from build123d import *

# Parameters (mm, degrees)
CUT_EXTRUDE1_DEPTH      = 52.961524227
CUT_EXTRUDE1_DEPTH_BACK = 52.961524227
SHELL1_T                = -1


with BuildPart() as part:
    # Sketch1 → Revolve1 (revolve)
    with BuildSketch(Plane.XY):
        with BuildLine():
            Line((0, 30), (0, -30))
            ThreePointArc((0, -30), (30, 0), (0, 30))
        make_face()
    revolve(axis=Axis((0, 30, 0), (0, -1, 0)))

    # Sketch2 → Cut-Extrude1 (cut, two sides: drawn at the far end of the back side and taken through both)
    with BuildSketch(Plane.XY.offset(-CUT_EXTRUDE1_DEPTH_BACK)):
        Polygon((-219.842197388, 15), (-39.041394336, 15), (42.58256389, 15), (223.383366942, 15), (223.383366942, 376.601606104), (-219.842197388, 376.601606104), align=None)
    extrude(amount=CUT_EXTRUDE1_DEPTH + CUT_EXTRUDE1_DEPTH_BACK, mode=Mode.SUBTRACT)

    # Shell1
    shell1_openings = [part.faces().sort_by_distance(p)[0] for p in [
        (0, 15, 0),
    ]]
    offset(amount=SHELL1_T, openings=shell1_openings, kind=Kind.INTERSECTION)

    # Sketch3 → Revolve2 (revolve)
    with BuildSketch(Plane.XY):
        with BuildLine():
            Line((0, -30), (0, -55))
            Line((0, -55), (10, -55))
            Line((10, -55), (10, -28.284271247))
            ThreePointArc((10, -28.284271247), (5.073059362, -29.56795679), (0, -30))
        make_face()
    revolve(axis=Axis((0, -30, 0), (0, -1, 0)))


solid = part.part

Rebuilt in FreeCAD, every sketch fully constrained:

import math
import FreeCAD as App
import Part
import Sketcher

V = App.Vector
Q = App.Units.Quantity


def faces_at(feature, points):
    """Names of the faces that lie closest to the given points."""
    faces = feature.Shape.Faces
    near = lambda p: min(range(len(faces)), key=lambda i: faces[i].distToShape(Part.Vertex(*p))[0])
    return sorted({f"Face{near(p) + 1}" for p in points})


def add_polygon(sketch, points):
    """Adds a closed chain of lines whose ends are joined by coincident constraints."""
    first, n = sketch.GeometryCount, len(points)
    for a, b in zip(points, points[1:] + points[:1]):
        sketch.addGeometry(Part.LineSegment(App.Vector(*a, 0), App.Vector(*b, 0)), False)
    for i in range(n):
        sketch.addConstraint(Sketcher.Constraint("Coincident", first + i, 2, first + (i + 1) % n, 1))

doc = App.newDocument("Part")
body = doc.addObject("PartDesign::Body", "Body")

# Sketch on XY plane
sketch1 = body.newObject("Sketcher::SketchObject", "Sketch")
sketch1.AttachmentSupport = (doc.getObject("XY_Plane"), [""])
sketch1.MapMode = "FlatFace"
sketch1.addGeometry([
    Part.LineSegment(V(0, 30, 0), V(0, -30, 0)),
    Part.ArcOfCircle(Part.Circle(V(0, 0, 0), V(0, 0, 1), 30), math.radians(-90), math.radians(90)),
], False)
sketch1.addConstraint([
    Sketcher.Constraint("Coincident", 0, 1, 1, 2),
    Sketcher.Constraint("Coincident", 1, 1, 0, 2),
    Sketcher.Constraint("Vertical", 0),
    Sketcher.Constraint("Coincident", 1, 3, -1, 1),
    Sketcher.Constraint("PointOnObject", 0, 1, -2),
    Sketcher.Constraint("Radius", 1, Q("30 mm")),
])
revolution = body.newObject("PartDesign::Revolution", "Revolution")
revolution.Profile = sketch1
revolution.ReferenceAxis = (sketch1, ["V_Axis"])
revolution.Angle = 360

# Sketch on XY plane
sketch2 = body.newObject("Sketcher::SketchObject", "Sketch001")
sketch2.AttachmentSupport = (doc.getObject("XY_Plane"), [""])
sketch2.MapMode = "FlatFace"
add_polygon(sketch2, [(-220, 15), (223, 15), (223, 377), (-220, 377)])  # lines 0-3
sketch2.addConstraint([
    Sketcher.Constraint("Horizontal", 0),
    Sketcher.Constraint("Vertical", 1),
    Sketcher.Constraint("Horizontal", 2),
    Sketcher.Constraint("Vertical", 3),
    Sketcher.Constraint("DistanceY", -1, 1, 0, 2, Q("15 mm")),
    Sketcher.Constraint("DistanceX", 0, 1, 0, 2, Q("443.225564 mm")),
    Sketcher.Constraint("DistanceY", 1, 1, 1, 2, Q("361.601606 mm")),
    Sketcher.Constraint("DistanceX", -1, 1, 0, 2, Q("223.383367 mm")),
])
pocket1 = body.newObject("PartDesign::Pocket", "Pocket")
pocket1.Profile = sketch2
pocket1.Type = "ThroughAll"
pocket1.Midplane = True
doc.recompute()

thickness = body.newObject("PartDesign::Thickness", "Thickness")
thickness.Base = (pocket1, faces_at(pocket1, [(0, 15, 0)]))
thickness.Value = 1
thickness.Reversed = True
thickness.Join = "Intersection"

# Sketch on XY plane
sketch3 = body.newObject("Sketcher::SketchObject", "Sketch002")
sketch3.AttachmentSupport = (doc.getObject("XY_Plane"), [""])
sketch3.MapMode = "FlatFace"
sketch3.addGeometry([
    Part.LineSegment(V(0, -30, 0), V(0, -55, 0)),
    Part.LineSegment(V(0, -55, 0), V(10, -55, 0)),
    Part.LineSegment(V(10, -55, 0), V(10, -28, 0)),
    Part.ArcOfCircle(Part.Circle(V(0, 0, 0), V(0, 0, 1), 30), math.radians(-90), math.radians(-70.53)),
], False)
sketch3.addConstraint([
    Sketcher.Constraint("Coincident", 0, 2, 1, 1),
    Sketcher.Constraint("Coincident", 1, 2, 2, 1),
    Sketcher.Constraint("Coincident", 2, 2, 3, 2),
    Sketcher.Constraint("Coincident", 3, 1, 0, 1),
    Sketcher.Constraint("Vertical", 0),
    Sketcher.Constraint("Horizontal", 1),
    Sketcher.Constraint("Vertical", 2),
    Sketcher.Constraint("Coincident", 3, 3, -1, 1),
    Sketcher.Constraint("PointOnObject", 0, 2, -2),
    Sketcher.Constraint("Radius", 3, Q("30 mm")),
    Sketcher.Constraint("DistanceX", 1, 1, 1, 2, Q("10 mm")),
    Sketcher.Constraint("DistanceY", 0, 2, 0, 1, Q("25 mm")),
])
revolution2 = body.newObject("PartDesign::Revolution", "Revolution001")
revolution2.Profile = sketch3
revolution2.ReferenceAxis = (sketch3, ["V_Axis"])
revolution2.Angle = 360

doc.recompute()
